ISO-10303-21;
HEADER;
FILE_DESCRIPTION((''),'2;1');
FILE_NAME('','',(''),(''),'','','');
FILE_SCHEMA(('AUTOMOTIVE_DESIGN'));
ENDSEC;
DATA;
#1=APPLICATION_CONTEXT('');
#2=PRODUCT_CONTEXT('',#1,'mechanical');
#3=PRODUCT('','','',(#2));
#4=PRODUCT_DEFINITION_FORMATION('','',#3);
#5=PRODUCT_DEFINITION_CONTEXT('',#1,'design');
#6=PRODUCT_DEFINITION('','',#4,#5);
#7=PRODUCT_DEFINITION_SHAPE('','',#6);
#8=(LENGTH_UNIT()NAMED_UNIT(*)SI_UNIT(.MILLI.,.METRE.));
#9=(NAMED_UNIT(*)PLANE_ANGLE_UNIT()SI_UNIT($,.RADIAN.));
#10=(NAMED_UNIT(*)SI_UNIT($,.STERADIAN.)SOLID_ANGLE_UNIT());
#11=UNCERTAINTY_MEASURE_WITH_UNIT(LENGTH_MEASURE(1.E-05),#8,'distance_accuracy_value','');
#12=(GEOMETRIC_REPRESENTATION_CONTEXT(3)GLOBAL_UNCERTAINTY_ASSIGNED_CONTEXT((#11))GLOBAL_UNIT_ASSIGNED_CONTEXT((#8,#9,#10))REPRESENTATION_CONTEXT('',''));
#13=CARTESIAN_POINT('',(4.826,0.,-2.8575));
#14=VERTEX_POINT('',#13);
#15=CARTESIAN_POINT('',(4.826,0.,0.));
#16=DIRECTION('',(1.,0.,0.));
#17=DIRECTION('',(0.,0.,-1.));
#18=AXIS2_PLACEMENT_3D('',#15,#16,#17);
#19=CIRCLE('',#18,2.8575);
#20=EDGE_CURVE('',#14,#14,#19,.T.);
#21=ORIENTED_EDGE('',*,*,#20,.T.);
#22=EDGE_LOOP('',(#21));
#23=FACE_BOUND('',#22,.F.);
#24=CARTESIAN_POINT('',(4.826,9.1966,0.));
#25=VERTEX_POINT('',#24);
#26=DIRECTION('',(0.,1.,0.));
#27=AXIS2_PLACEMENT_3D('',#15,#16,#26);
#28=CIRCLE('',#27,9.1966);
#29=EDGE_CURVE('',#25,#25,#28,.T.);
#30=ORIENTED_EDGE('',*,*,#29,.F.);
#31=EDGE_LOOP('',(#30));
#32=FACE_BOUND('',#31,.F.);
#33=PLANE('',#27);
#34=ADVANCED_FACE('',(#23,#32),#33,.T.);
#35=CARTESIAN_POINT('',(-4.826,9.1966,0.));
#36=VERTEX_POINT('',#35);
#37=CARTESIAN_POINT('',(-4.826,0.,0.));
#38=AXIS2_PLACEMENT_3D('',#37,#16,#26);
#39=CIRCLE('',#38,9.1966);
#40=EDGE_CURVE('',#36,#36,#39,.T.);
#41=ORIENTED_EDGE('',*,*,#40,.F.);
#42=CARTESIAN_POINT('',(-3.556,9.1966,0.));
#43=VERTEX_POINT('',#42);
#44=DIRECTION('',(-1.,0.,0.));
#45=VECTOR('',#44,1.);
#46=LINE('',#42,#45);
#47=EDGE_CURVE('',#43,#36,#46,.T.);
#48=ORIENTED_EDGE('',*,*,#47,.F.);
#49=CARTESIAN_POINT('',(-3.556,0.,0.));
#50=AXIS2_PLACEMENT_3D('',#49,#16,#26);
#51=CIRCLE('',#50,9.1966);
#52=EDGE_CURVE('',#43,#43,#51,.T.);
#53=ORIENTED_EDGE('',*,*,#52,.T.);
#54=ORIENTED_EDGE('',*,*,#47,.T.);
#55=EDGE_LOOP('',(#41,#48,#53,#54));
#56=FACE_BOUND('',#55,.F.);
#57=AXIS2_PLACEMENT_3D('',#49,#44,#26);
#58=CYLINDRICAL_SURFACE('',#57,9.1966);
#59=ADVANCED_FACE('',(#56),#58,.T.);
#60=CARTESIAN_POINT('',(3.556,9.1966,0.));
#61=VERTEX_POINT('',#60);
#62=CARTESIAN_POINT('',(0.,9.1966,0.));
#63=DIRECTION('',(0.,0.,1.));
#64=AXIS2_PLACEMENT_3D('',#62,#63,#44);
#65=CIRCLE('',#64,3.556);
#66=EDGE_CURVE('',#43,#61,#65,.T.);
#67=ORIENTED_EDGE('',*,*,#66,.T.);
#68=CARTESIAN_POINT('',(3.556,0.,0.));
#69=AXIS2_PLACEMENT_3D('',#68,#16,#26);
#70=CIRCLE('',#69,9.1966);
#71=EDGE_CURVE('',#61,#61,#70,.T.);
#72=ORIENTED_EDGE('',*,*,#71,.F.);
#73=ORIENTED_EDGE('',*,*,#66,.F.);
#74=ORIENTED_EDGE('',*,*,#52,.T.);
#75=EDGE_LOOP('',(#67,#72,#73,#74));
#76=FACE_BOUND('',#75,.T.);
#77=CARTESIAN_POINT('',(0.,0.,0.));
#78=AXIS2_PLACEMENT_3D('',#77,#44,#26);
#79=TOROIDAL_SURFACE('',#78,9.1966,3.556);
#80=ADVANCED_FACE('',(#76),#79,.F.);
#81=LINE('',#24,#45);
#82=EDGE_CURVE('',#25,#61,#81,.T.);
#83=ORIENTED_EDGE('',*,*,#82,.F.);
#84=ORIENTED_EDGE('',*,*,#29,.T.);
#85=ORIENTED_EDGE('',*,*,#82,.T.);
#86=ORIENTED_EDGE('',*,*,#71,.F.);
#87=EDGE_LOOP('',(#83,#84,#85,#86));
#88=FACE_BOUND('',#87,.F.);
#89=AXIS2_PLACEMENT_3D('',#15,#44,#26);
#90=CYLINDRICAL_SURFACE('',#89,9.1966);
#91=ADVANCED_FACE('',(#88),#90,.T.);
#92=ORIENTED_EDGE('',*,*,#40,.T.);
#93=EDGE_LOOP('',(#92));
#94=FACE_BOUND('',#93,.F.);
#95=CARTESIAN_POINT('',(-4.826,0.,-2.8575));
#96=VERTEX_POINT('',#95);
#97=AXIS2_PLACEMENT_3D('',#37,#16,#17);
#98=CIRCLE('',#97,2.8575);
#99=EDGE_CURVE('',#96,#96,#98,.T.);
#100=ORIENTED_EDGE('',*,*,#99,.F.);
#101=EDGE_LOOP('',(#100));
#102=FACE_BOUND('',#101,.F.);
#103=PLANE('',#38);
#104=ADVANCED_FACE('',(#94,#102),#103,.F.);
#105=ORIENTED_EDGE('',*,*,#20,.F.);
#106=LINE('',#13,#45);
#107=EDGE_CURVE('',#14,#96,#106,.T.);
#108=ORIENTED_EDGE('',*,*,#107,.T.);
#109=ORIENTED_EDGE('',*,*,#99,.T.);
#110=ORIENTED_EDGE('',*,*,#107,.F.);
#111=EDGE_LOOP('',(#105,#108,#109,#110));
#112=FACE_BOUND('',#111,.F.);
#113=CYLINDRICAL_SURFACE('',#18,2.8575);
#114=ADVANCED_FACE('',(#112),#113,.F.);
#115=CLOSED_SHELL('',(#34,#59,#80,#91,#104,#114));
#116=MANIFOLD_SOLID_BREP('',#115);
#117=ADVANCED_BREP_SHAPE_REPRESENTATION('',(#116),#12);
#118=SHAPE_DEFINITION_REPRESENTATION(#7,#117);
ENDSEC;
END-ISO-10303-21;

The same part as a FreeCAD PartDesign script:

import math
import FreeCAD as App
import Part
import Sketcher
from FreeCAD import Vector
Q = App.Units.Quantity

doc = App.newDocument("Part")
body = doc.addObject("PartDesign::Body", "Body")

# Sketch on XY plane
sketch1 = body.newObject("Sketcher::SketchObject", "Sketch")
sketch1.AttachmentSupport = (doc.getObject("XY_Plane"), [""])
sketch1.MapMode = "FlatFace"
sketch1.addGeometry([
    Part.LineSegment(Vector(4.8, 1.5, 0), Vector(4.8, 9.2, 0)),  # 0
    Part.LineSegment(Vector(4.8, 9.2, 0), Vector(3.6, 9.2, 0)),  # 1
    Part.ArcOfCircle(Part.Circle(Vector(0, 9.2, 0), Vector(0, 0, 1), 3.6), math.radians(180), math.radians(360)),  # 2
    Part.LineSegment(Vector(-3.6, 9.2, 0), Vector(-4.8, 9.2, 0)),  # 3
    Part.LineSegment(Vector(-4.8, 9.2, 0), Vector(-4.8, 1.5, 0)),  # 4
    Part.LineSegment(Vector(-4.8, 1.5, 0), Vector(4.8, 1.5, 0)),  # 5
], False)
sketch1.addConstraint([
    Sketcher.Constraint("Coincident", 0, 2, 1, 1),
    Sketcher.Constraint("Coincident", 1, 2, 2, 2),
    Sketcher.Constraint("Coincident", 2, 1, 3, 1),
    Sketcher.Constraint("Coincident", 3, 2, 4, 1),
    Sketcher.Constraint("Coincident", 4, 2, 5, 1),
    Sketcher.Constraint("Coincident", 5, 2, 0, 1),
    Sketcher.Constraint("Vertical", 0),
    Sketcher.Constraint("Horizontal", 1),
    Sketcher.Constraint("Horizontal", 3),
    Sketcher.Constraint("Vertical", 4),
    Sketcher.Constraint("Horizontal", 5),
    Sketcher.Constraint("Symmetric", 1, 2, 2, 1, -2),
    Sketcher.Constraint("Horizontal", 2, 3, 0, 2),
    Sketcher.Constraint("Equal", 1, 3),
    Sketcher.Constraint("Radius", 2, Q("0.14 in")),
    Sketcher.Constraint("DistanceX", 1, 2, 1, 1, Q("0.05 in")),
    Sketcher.Constraint("DistanceY", 0, 1, 0, 2, 7.6638),
    Sketcher.Constraint("DistanceY", -1, 1, 2, 3, 9.1966),
])
revolution = body.newObject("PartDesign::Revolution", "Revolution")
revolution.Profile = sketch1
revolution.ReferenceAxis = (sketch1, ["H_Axis"])
revolution.Angle = 360

# Sketch on YZ plane
sketch2 = body.newObject("Sketcher::SketchObject", "Sketch001")
sketch2.AttachmentSupport = (doc.getObject("YZ_Plane"), [""])
sketch2.MapMode = "FlatFace"
sketch2.AttachmentOffset = App.Placement(Vector(0, 0, 0.19 * 25.4), App.Rotation())
sketch2.addGeometry(Part.Circle(Vector(0, 0, 0), Vector(0, 0, 1), 2.9), False)
sketch2.addConstraint([
    Sketcher.Constraint("Coincident", 0, 3, -1, 1),
    Sketcher.Constraint("Diameter", 0, Q("0.225 in")),
])
pocket1 = body.newObject("PartDesign::Pocket", "Pocket")
pocket1.Profile = sketch2
pocket1.Type = "ThroughAll"

doc.recompute()
